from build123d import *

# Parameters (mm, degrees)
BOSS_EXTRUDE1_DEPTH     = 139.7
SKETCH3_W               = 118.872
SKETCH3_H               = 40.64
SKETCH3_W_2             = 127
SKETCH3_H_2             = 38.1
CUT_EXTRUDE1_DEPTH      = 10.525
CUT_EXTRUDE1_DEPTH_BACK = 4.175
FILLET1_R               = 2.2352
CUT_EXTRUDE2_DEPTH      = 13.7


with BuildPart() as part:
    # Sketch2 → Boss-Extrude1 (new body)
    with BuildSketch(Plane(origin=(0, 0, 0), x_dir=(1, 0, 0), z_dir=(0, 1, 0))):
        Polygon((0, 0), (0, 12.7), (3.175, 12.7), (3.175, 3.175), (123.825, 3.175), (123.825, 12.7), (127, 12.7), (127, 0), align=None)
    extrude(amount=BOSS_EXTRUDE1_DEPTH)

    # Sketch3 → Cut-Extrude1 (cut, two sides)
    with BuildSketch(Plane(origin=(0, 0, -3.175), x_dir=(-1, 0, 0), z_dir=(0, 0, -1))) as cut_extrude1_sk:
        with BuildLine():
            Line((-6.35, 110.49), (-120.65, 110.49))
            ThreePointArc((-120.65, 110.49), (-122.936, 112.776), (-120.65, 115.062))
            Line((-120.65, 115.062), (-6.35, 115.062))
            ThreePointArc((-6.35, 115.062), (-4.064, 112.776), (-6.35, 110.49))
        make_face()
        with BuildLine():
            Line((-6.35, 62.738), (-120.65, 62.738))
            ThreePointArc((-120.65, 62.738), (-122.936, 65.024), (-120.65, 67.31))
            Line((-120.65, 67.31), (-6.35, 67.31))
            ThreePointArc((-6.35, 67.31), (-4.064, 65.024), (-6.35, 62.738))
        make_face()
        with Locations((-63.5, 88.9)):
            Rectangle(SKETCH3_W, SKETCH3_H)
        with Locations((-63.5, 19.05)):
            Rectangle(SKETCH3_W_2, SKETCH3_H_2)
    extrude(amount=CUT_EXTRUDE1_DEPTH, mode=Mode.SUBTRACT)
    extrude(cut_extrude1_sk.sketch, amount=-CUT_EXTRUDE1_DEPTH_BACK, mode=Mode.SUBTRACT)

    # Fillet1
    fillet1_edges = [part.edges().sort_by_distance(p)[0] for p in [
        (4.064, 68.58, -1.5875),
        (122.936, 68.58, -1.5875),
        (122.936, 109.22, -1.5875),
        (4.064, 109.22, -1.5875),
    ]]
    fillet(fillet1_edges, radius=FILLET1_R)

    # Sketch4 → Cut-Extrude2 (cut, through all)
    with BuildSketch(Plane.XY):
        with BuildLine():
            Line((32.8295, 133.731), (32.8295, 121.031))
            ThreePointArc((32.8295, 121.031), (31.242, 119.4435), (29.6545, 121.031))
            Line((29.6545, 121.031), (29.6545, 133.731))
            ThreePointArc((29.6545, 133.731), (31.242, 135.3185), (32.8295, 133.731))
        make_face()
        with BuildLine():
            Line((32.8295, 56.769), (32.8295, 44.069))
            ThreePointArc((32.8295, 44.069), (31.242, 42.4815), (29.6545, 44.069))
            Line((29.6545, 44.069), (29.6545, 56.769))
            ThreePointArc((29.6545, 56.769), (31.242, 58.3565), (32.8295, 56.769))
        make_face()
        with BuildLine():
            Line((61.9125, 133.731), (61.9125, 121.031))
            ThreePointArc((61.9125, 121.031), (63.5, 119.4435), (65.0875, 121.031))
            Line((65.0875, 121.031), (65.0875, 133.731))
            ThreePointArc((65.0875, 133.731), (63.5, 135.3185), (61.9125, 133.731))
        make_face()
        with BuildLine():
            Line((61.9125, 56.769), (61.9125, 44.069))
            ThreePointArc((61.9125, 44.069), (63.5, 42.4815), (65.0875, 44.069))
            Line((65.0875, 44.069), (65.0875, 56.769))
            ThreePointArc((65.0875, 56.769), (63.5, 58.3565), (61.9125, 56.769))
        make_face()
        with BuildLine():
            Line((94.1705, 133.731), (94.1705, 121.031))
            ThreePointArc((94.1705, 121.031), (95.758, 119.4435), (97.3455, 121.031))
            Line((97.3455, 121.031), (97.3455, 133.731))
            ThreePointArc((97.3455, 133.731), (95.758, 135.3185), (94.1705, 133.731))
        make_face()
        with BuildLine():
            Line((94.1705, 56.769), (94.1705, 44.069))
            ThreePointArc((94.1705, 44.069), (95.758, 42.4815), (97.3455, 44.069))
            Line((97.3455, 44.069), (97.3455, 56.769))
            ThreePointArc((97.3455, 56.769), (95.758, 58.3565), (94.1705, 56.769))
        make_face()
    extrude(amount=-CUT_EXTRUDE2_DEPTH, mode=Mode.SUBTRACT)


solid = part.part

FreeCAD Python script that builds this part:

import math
import FreeCAD as App
import Part
import Sketcher

V = App.Vector
Q = App.Units.Quantity


def edges_at(feature, points):
    """Names of the edges that pass closest to the given points."""
    edges = feature.Shape.Edges
    near = lambda p: min(range(len(edges)), key=lambda i: edges[i].distToShape(Part.Vertex(*p))[0])
    return sorted({f"Edge{near(p) + 1}" for p in points})


def add_polygon(sketch, points):
    """Adds a closed chain of lines whose ends are joined by coincident constraints."""
    first, n = sketch.GeometryCount, len(points)
    for a, b in zip(points, points[1:] + points[:1]):
        sketch.addGeometry(Part.LineSegment(App.Vector(*a, 0), App.Vector(*b, 0)), False)
    for i in range(n):
        sketch.addConstraint(Sketcher.Constraint("Coincident", first + i, 2, first + (i + 1) % n, 1))

doc = App.newDocument("Part")
params = doc.addObject("Spreadsheet::Sheet", "Params")
for row, (alias, value) in enumerate([
    ("sketch1_width", "5 in"),
    ("sketch1_height", "0.5 in"),
    ("sketch1_width2", "4.75 in"),
    ("sketch1_height2", "0.375 in"),
    ("pad1_length", "5.5 in"),
    ("sketch2_width", "5 in"),
    ("sketch2_radius", "0.09 in"),
    ("sketch2_width2", "4.5 in"),
    ("sketch2_height", "1.6 in"),
    ("sketch2_height2", "1.5 in"),
    ("fillet_radius", "0.088 in"),
    ("sketch3_height", "0.5 in"),
    ("sketch3_radius", "0.0625 in"),
], start=1):
    params.set(f"A{row}", alias)
    params.set(f"B{row}", "=" + value)
    params.setAlias(f"B{row}", alias)

body = doc.addObject("PartDesign::Body", "Body")

# Sketch on XZ plane
sketch1 = body.newObject("Sketcher::SketchObject", "Sketch")
sketch1.AttachmentSupport = (doc.getObject("XZ_Plane"), [""])
sketch1.MapMode = "FlatFace"
add_polygon(sketch1, [(0, -12.7), (0, 0), (127, 0), (127, -12.7), (123.8, -12.7), (123.8, -3.2), (3.2, -3.2), (3.2, -12.7)])  # lines 0-7
sketch1.addConstraint(Sketcher.Constraint("Vertical", 0))
sketch1.addConstraint(Sketcher.Constraint("Horizontal", 1))
sketch1.addConstraint(Sketcher.Constraint("Vertical", 2))
sketch1.addConstraint(Sketcher.Constraint("Horizontal", 3))
sketch1.addConstraint(Sketcher.Constraint("Vertical", 4))
sketch1.addConstraint(Sketcher.Constraint("Horizontal", 5))
sketch1.addConstraint(Sketcher.Constraint("Vertical", 6))
sketch1.addConstraint(Sketcher.Constraint("Horizontal", 7))
sketch1.addConstraint(Sketcher.Constraint("Coincident", 0, 2, -1, 1))
sketch1.addConstraint(Sketcher.Constraint("Horizontal", 3, 2, 6, 2))
sketch1.addConstraint(Sketcher.Constraint("Equal", 3, 7))
sketch1.addConstraint(Sketcher.Constraint("DistanceX", 1, 1, 1, 2, Q("5 in")))
sketch1.addConstraint(Sketcher.Constraint("DistanceY", 0, 1, 0, 2, Q("0.5 in")))
sketch1.addConstraint(Sketcher.Constraint("DistanceX", 5, 2, 5, 1, Q("4.75 in")))
sketch1.addConstraint(Sketcher.Constraint("DistanceY", 4, 1, 4, 2, Q("0.375 in")))
sketch1.setExpression("Constraints[19]", "Params.sketch1_width")
sketch1.setExpression("Constraints[20]", "Params.sketch1_height")
sketch1.setExpression("Constraints[21]", "Params.sketch1_width2")
sketch1.setExpression("Constraints[22]", "Params.sketch1_height2")
pad1 = body.newObject("PartDesign::Pad", "Pad")
pad1.Profile = sketch1
pad1.setExpression("Length", "Params.pad1_length")
pad1.Reversed = True

# Sketch on XY plane
sketch2 = body.newObject("Sketcher::SketchObject", "Sketch001")
sketch2.AttachmentSupport = (doc.getObject("XY_Plane"), [""])
sketch2.MapMode = "FlatFace"
sketch2.AttachmentOffset = App.Placement(V(0, 0, -0.125 * 25.4), App.Rotation())
sketch2.addGeometry(Part.LineSegment(V(120.7, 110.5, 0), V(6.3, 110.5, 0)), False)  # 0
sketch2.addGeometry(Part.ArcOfCircle(Part.Circle(V(6.3, 112.8, 0), V(0, 0, 1), 2.3), math.radians(90), math.radians(270)), False)  # 1
sketch2.addGeometry(Part.LineSegment(V(6.3, 115.1, 0), V(120.7, 115.1, 0)), False)  # 2
sketch2.addGeometry(Part.ArcOfCircle(Part.Circle(V(120.7, 112.8, 0), V(0, 0, 1), 2.3), math.radians(-90), math.radians(90)), False)  # 3
sketch2.addGeometry(Part.LineSegment(V(120.7, 62.7, 0), V(6.3, 62.7, 0)), False)  # 4
sketch2.addGeometry(Part.ArcOfCircle(Part.Circle(V(6.3, 65, 0), V(0, 0, 1), 2.3), math.radians(90), math.radians(270)), False)  # 5
sketch2.addGeometry(Part.LineSegment(V(6.3, 67.3, 0), V(120.7, 67.3, 0)), False)  # 6
sketch2.addGeometry(Part.ArcOfCircle(Part.Circle(V(120.7, 65, 0), V(0, 0, 1), 2.3), math.radians(-90), math.radians(90)), False)  # 7
add_polygon(sketch2, [(122.9, 109.2), (122.9, 68.6), (4.1, 68.6), (4.1, 109.2)])  # lines 8-11
add_polygon(sketch2, [(127, 38.1), (127, 0), (0, 0), (0, 38.1)])  # lines 12-15
sketch2.addConstraint(Sketcher.Constraint("Tangent", 0, 2, 1, 2))
sketch2.addConstraint(Sketcher.Constraint("Tangent", 1, 1, 2, 1))
sketch2.addConstraint(Sketcher.Constraint("Tangent", 2, 2, 3, 2))
sketch2.addConstraint(Sketcher.Constraint("Tangent", 3, 1, 0, 1))
sketch2.addConstraint(Sketcher.Constraint("Tangent", 4, 2, 5, 2))
sketch2.addConstraint(Sketcher.Constraint("Tangent", 5, 1, 6, 1))
sketch2.addConstraint(Sketcher.Constraint("Tangent", 6, 2, 7, 2))
sketch2.addConstraint(Sketcher.Constraint("Tangent", 7, 1, 4, 1))
sketch2.addConstraint(Sketcher.Constraint("Horizontal", 0))
sketch2.addConstraint(Sketcher.Constraint("Horizontal", 2))
sketch2.addConstraint(Sketcher.Constraint("Horizontal", 4))
sketch2.addConstraint(Sketcher.Constraint("Horizontal", 6))
sketch2.addConstraint(Sketcher.Constraint("Vertical", 8))
sketch2.addConstraint(Sketcher.Constraint("Horizontal", 9))
sketch2.addConstraint(Sketcher.Constraint("Vertical", 10))
sketch2.addConstraint(Sketcher.Constraint("Horizontal", 11))
sketch2.addConstraint(Sketcher.Constraint("Vertical", 12))
sketch2.addConstraint(Sketcher.Constraint("Horizontal", 13))
sketch2.addConstraint(Sketcher.Constraint("Vertical", 14))
sketch2.addConstraint(Sketcher.Constraint("Horizontal", 15))
sketch2.addConstraint(Sketcher.Constraint("Coincident", 13, 2, -1, 1))
sketch2.addConstraint(Sketcher.Constraint("Equal", 3, 5))
sketch2.addConstraint(Sketcher.Constraint("Vertical", 1, 3, 5, 3))
sketch2.addConstraint(Sketcher.Constraint("Vertical", 3, 3, 7, 3))
sketch2.addConstraint(Sketcher.Constraint("DistanceX", 13, 2, 13, 1, Q("5 in")))
sketch2.addConstraint(Sketcher.Constraint("Radius", 1, Q("0.09 in")))
sketch2.addConstraint(Sketcher.Constraint("DistanceX", 0, 2, 0, 1, Q("4.5 in")))
sketch2.addConstraint(Sketcher.Constraint("DistanceY", 8, 2, 8, 1, Q("1.6 in")))
sketch2.addConstraint(Sketcher.Constraint("DistanceY", 12, 2, 12, 1, Q("1.5 in")))
sketch2.addConstraint(Sketcher.Constraint("DistanceX", 9, 2, 9, 1, Q("4.68 in")))
sketch2.addConstraint(Sketcher.Constraint("DistanceY", -1, 1, 8, 2, Q("2.7 in")))
sketch2.addConstraint(Sketcher.Constraint("DistanceY", 5, 1, 0, 2, Q("1.7 in")))
sketch2.addConstraint(Sketcher.Constraint("DistanceX", -1, 1, 1, 3, Q("0.25 in")))
sketch2.addConstraint(Sketcher.Constraint("DistanceY", -1, 1, 1, 3, Q("4.44 in")))
sketch2.addConstraint(Sketcher.Constraint("DistanceX", -1, 1, 8, 2, Q("4.84 in")))
sketch2.setExpression("Constraints[32]", "Params.sketch2_width")
sketch2.setExpression("Constraints[33]", "Params.sketch2_radius")
sketch2.setExpression("Constraints[34]", "Params.sketch2_width2")
sketch2.setExpression("Constraints[35]", "Params.sketch2_height")
sketch2.setExpression("Constraints[36]", "Params.sketch2_height2")
pocket1 = body.newObject("PartDesign::Pocket", "Pocket")
pocket1.Profile = sketch2
pocket1.Type = "ThroughAll"
pocket1.Midplane = True
doc.recompute()

fillet = body.newObject("PartDesign::Fillet", "Fillet")
fillet.Base = (pocket1, edges_at(pocket1, [
    (4.064, 68.58, -1.587),
    (122.936, 68.58, -1.587),
    (122.936, 109.22, -1.587),
    (4.064, 109.22, -1.587),
]))
fillet.setExpression("Radius", "Params.fillet_radius")

# Sketch on XY plane
sketch3 = body.newObject("Sketcher::SketchObject", "Sketch002")
sketch3.AttachmentSupport = (doc.getObject("XY_Plane"), [""])
sketch3.MapMode = "FlatFace"
sketch3.addGeometry(Part.LineSegment(V(32.8, 121, 0), V(32.8, 133.7, 0)), False)
sketch3.addGeometry(Part.ArcOfCircle(Part.Circle(V(31.2, 133.7, 0), V(0, 0, 1), 1.6), math.radians(0), math.radians(180)), False)
sketch3.addGeometry(Part.LineSegment(V(29.7, 133.7, 0), V(29.7, 121, 0)), False)
sketch3.addGeometry(Part.ArcOfCircle(Part.Circle(V(31.2, 121, 0), V(0, 0, 1), 1.6), math.radians(180), math.radians(360)), False)
sketch3.addGeometry(Part.LineSegment(V(32.8, 44.1, 0), V(32.8, 56.8, 0)), False)
sketch3.addGeometry(Part.ArcOfCircle(Part.Circle(V(31.2, 56.8, 0), V(0, 0, 1), 1.6), math.radians(0), math.radians(180)), False)
sketch3.addGeometry(Part.LineSegment(V(29.7, 56.8, 0), V(29.7, 44.1, 0)), False)
sketch3.addGeometry(Part.ArcOfCircle(Part.Circle(V(31.2, 44.1, 0), V(0, 0, 1), 1.6), math.radians(180), math.radians(360)), False)
sketch3.addGeometry(Part.LineSegment(V(61.9, 133.7, 0), V(61.9, 121, 0)), False)
sketch3.addGeometry(Part.ArcOfCircle(Part.Circle(V(63.5, 121, 0), V(0, 0, 1), 1.6), math.radians(180), math.radians(360)), False)
sketch3.addGeometry(Part.LineSegment(V(65.1, 121, 0), V(65.1, 133.7, 0)), False)
sketch3.addGeometry(Part.ArcOfCircle(Part.Circle(V(63.5, 133.7, 0), V(0, 0, 1), 1.6), math.radians(0), math.radians(180)), False)
sketch3.addGeometry(Part.LineSegment(V(61.9, 56.8, 0), V(61.9, 44.1, 0)), False)
sketch3.addGeometry(Part.ArcOfCircle(Part.Circle(V(63.5, 44.1, 0), V(0, 0, 1), 1.6), math.radians(180), math.radians(360)), False)
sketch3.addGeometry(Part.LineSegment(V(65.1, 44.1, 0), V(65.1, 56.8, 0)), False)
sketch3.addGeometry(Part.ArcOfCircle(Part.Circle(V(63.5, 56.8, 0), V(0, 0, 1), 1.6), math.radians(0), math.radians(180)), False)
sketch3.addGeometry(Part.LineSegment(V(94.2, 133.7, 0), V(94.2, 121, 0)), False)
sketch3.addGeometry(Part.ArcOfCircle(Part.Circle(V(95.8, 121, 0), V(0, 0, 1), 1.6), math.radians(180), math.radians(360)), False)
sketch3.addGeometry(Part.LineSegment(V(97.3, 121, 0), V(97.3, 133.7, 0)), False)
sketch3.addGeometry(Part.ArcOfCircle(Part.Circle(V(95.8, 133.7, 0), V(0, 0, 1), 1.6), math.radians(0), math.radians(180)), False)
sketch3.addGeometry(Part.LineSegment(V(94.2, 56.8, 0), V(94.2, 44.1, 0)), False)
sketch3.addGeometry(Part.ArcOfCircle(Part.Circle(V(95.8, 44.1, 0), V(0, 0, 1), 1.6), math.radians(180), math.radians(360)), False)
sketch3.addGeometry(Part.LineSegment(V(97.3, 44.1, 0), V(97.3, 56.8, 0)), False)
sketch3.addGeometry(Part.ArcOfCircle(Part.Circle(V(95.8, 56.8, 0), V(0, 0, 1), 1.6), math.radians(0), math.radians(180)), False)
sketch3.addConstraint(Sketcher.Constraint("Tangent", 0, 2, 1, 1))
sketch3.addConstraint(Sketcher.Constraint("Tangent", 1, 2, 2, 1))
sketch3.addConstraint(Sketcher.Constraint("Tangent", 2, 2, 3, 1))
sketch3.addConstraint(Sketcher.Constraint("Tangent", 3, 2, 0, 1))
sketch3.addConstraint(Sketcher.Constraint("Tangent", 4, 2, 5, 1))
sketch3.addConstraint(Sketcher.Constraint("Tangent", 5, 2, 6, 1))
sketch3.addConstraint(Sketcher.Constraint("Tangent", 6, 2, 7, 1))
sketch3.addConstraint(Sketcher.Constraint("Tangent", 7, 2, 4, 1))
sketch3.addConstraint(Sketcher.Constraint("Tangent", 8, 2, 9, 1))
sketch3.addConstraint(Sketcher.Constraint("Tangent", 9, 2, 10, 1))
sketch3.addConstraint(Sketcher.Constraint("Tangent", 10, 2, 11, 1))
sketch3.addConstraint(Sketcher.Constraint("Tangent", 11, 2, 8, 1))
sketch3.addConstraint(Sketcher.Constraint("Tangent", 12, 2, 13, 1))
sketch3.addConstraint(Sketcher.Constraint("Tangent", 13, 2, 14, 1))
sketch3.addConstraint(Sketcher.Constraint("Tangent", 14, 2, 15, 1))
sketch3.addConstraint(Sketcher.Constraint("Tangent", 15, 2, 12, 1))
sketch3.addConstraint(Sketcher.Constraint("Tangent", 16, 2, 17, 1))
sketch3.addConstraint(Sketcher.Constraint("Tangent", 17, 2, 18, 1))
sketch3.addConstraint(Sketcher.Constraint("Tangent", 18, 2, 19, 1))
sketch3.addConstraint(Sketcher.Constraint("Tangent", 19, 2, 16, 1))
sketch3.addConstraint(Sketcher.Constraint("Tangent", 20, 2, 21, 1))
sketch3.addConstraint(Sketcher.Constraint("Tangent", 21, 2, 22, 1))
sketch3.addConstraint(Sketcher.Constraint("Tangent", 22, 2, 23, 1))
sketch3.addConstraint(Sketcher.Constraint("Tangent", 23, 2, 20, 1))
sketch3.addConstraint(Sketcher.Constraint("Vertical", 0))
sketch3.addConstraint(Sketcher.Constraint("Vertical", 2))
sketch3.addConstraint(Sketcher.Constraint("Vertical", 4))
sketch3.addConstraint(Sketcher.Constraint("Vertical", 6))
sketch3.addConstraint(Sketcher.Constraint("Vertical", 8))
sketch3.addConstraint(Sketcher.Constraint("Vertical", 10))
sketch3.addConstraint(Sketcher.Constraint("Vertical", 12))
sketch3.addConstraint(Sketcher.Constraint("Vertical", 14))
sketch3.addConstraint(Sketcher.Constraint("Vertical", 16))
sketch3.addConstraint(Sketcher.Constraint("Vertical", 18))
sketch3.addConstraint(Sketcher.Constraint("Vertical", 20))
sketch3.addConstraint(Sketcher.Constraint("Vertical", 22))
sketch3.addConstraint(Sketcher.Constraint("Equal", 3, 5))
sketch3.addConstraint(Sketcher.Constraint("Equal", 7, 9))
sketch3.addConstraint(Sketcher.Constraint("Equal", 11, 13))
sketch3.addConstraint(Sketcher.Constraint("Equal", 15, 17))
sketch3.addConstraint(Sketcher.Constraint("Equal", 19, 21))
sketch3.addConstraint(Sketcher.Constraint("Horizontal", 3, 3, 9, 3))
sketch3.addConstraint(Sketcher.Constraint("Horizontal", 1, 3, 11, 3))
sketch3.addConstraint(Sketcher.Constraint("Horizontal", 7, 3, 13, 3))
sketch3.addConstraint(Sketcher.Constraint("Horizontal", 5, 3, 15, 3))
sketch3.addConstraint(Sketcher.Constraint("Horizontal", 9, 3, 17, 3))
sketch3.addConstraint(Sketcher.Constraint("Horizontal", 11, 3, 19, 3))
sketch3.addConstraint(Sketcher.Constraint("Horizontal", 13, 3, 21, 3))
sketch3.addConstraint(Sketcher.Constraint("Horizontal", 15, 3, 23, 3))
sketch3.addConstraint(Sketcher.Constraint("Vertical", 3, 3, 5, 3))
sketch3.addConstraint(Sketcher.Constraint("Vertical", 11, 3, 13, 3))
sketch3.addConstraint(Sketcher.Constraint("Vertical", 19, 3, 21, 3))
sketch3.addConstraint(Sketcher.Constraint("Equal", 2, 4))
sketch3.addConstraint(Sketcher.Constraint("DistanceY", 0, 1, 0, 2, Q("0.5 in")))
sketch3.addConstraint(Sketcher.Constraint("Radius", 1, Q("0.0625 in")))
sketch3.addConstraint(Sketcher.Constraint("DistanceX", -1, 1, 9, 3, Q("2.5 in")))
sketch3.addConstraint(Sketcher.Constraint("DistanceX", -1, 1, 1, 3, Q("1.23 in")))
sketch3.addConstraint(Sketcher.Constraint("DistanceX", -1, 1, 17, 3, Q("3.77 in")))
sketch3.addConstraint(Sketcher.Constraint("DistanceY", 5, 3, 3, 3, Q("2.53 in")))
sketch3.addConstraint(Sketcher.Constraint("DistanceY", -1, 1, 1, 3, Q("5.265 in")))
sketch3.setExpression("Constraints[53]", "Params.sketch3_height")
sketch3.setExpression("Constraints[54]", "Params.sketch3_radius")
pocket2 = body.newObject("PartDesign::Pocket", "Pocket001")
pocket2.Profile = sketch3
pocket2.Type = "ThroughAll"

doc.recompute()
